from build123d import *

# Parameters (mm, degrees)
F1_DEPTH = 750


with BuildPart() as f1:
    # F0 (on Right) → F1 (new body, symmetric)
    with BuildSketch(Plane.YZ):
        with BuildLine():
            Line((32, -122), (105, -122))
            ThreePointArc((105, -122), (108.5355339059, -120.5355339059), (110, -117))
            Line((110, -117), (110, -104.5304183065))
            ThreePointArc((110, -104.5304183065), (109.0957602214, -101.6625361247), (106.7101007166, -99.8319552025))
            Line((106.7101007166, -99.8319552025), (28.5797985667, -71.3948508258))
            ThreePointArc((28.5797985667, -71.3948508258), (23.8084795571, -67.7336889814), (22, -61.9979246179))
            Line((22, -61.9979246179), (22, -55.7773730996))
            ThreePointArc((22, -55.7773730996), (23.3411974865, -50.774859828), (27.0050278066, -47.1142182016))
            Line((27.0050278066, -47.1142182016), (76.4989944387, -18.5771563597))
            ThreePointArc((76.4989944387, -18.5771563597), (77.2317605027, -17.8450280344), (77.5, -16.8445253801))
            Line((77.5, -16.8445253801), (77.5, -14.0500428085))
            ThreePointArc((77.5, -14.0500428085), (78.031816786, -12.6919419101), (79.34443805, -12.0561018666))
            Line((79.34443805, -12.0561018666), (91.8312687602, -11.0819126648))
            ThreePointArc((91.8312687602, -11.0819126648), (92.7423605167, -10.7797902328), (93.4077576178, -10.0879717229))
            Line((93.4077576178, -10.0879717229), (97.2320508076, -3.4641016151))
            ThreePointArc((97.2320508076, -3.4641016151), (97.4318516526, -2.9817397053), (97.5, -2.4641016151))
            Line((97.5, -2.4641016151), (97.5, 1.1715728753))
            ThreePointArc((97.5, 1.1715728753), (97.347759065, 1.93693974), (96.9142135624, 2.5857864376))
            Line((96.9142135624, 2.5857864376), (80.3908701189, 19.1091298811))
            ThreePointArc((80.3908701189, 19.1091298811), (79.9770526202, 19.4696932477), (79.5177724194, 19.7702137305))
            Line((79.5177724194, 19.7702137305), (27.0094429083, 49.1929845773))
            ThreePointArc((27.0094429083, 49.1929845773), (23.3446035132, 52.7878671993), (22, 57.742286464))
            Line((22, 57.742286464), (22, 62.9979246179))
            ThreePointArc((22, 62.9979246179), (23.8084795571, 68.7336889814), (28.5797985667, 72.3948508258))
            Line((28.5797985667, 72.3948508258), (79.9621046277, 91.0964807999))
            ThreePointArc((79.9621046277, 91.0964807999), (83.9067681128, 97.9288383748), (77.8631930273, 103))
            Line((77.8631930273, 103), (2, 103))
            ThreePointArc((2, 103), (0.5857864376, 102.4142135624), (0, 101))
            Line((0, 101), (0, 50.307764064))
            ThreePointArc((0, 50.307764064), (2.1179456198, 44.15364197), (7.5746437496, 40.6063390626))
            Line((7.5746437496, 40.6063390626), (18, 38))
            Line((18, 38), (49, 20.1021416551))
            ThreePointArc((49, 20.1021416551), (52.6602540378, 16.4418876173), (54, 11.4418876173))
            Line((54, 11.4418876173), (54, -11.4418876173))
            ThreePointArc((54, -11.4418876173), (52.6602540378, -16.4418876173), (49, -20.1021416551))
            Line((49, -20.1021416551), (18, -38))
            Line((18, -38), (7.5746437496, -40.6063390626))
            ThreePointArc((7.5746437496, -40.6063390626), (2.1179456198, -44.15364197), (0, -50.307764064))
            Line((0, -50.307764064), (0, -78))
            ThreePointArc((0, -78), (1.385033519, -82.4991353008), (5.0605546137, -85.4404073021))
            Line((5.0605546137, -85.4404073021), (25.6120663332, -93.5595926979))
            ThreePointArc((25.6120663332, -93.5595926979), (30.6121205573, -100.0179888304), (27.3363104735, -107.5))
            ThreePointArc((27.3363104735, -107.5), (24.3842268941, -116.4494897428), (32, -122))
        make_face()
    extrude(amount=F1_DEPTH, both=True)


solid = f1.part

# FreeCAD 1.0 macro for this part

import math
import FreeCAD as App
import Part
import Sketcher

V = App.Vector
Q = App.Units.Quantity

doc = App.newDocument("Part")
body = doc.addObject("PartDesign::Body", "Body")

# Sketch on YZ plane
sketch1 = body.newObject("Sketcher::SketchObject", "Sketch")
sketch1.AttachmentSupport = (doc.getObject("YZ_Plane"), [""])
sketch1.MapMode = "FlatFace"
sketch1.addGeometry(Part.LineSegment(V(32, -122, 0), V(105, -122, 0)), False)
sketch1.addGeometry(Part.ArcOfCircle(Part.Circle(V(105, -117, 0), V(0, 0, 1), 5), math.radians(-90), math.radians(0)), False)
sketch1.addGeometry(Part.LineSegment(V(110, -117, 0), V(110, -104.530418, 0)), False)
sketch1.addGeometry(Part.ArcOfCircle(Part.Circle(V(105, -104.530418, 0), V(0, 0, 1), 5), math.radians(0), math.radians(70)), False)
sketch1.addGeometry(Part.LineSegment(V(106.710101, -99.831955, 0), V(28.579799, -71.394851, 0)), False)
sketch1.addGeometry(Part.ArcOfCircle(Part.Circle(V(32, -61.997925, 0), V(0, 0, 1), 10), math.radians(180), math.radians(250)), False)
sketch1.addGeometry(Part.LineSegment(V(22, -61.997925, 0), V(22, -55.777373, 0)), False)
sketch1.addGeometry(Part.ArcOfCircle(Part.Circle(V(32, -55.777373, 0), V(0, 0, 1), 10), math.radians(119.966742), math.radians(180)), False)
sketch1.addGeometry(Part.LineSegment(V(27.005028, -47.114218, 0), V(76.498994, -18.577156, 0)), False)
sketch1.addGeometry(Part.ArcOfCircle(Part.Circle(V(75.5, -16.844525, 0), V(0, 0, 1), 2), math.radians(-60.033258), math.radians(0)), False)
sketch1.addGeometry(Part.LineSegment(V(77.5, -16.844525, 0), V(77.5, -14.050043, 0)), False)
sketch1.addGeometry(Part.ArcOfCircle(Part.Circle(V(79.5, -14.050043, 0), V(0, 0, 1), 2), math.radians(94.461027), math.radians(180)), False)
sketch1.addGeometry(Part.LineSegment(V(79.344438, -12.056102, 0), V(91.831269, -11.081913, 0)), False)
sketch1.addGeometry(Part.ArcOfCircle(Part.Circle(V(91.675707, -9.087972, 0), V(0, 0, 1), 2), math.radians(-85.538973), math.radians(-30)), False)
sketch1.addGeometry(Part.LineSegment(V(93.407758, -10.087972, 0), V(97.232051, -3.464102, 0)), False)
sketch1.addGeometry(Part.ArcOfCircle(Part.Circle(V(95.5, -2.464102, 0), V(0, 0, 1), 2), math.radians(-30), math.radians(0)), False)
sketch1.addGeometry(Part.LineSegment(V(97.5, -2.464102, 0), V(97.5, 1.171573, 0)), False)
sketch1.addGeometry(Part.ArcOfCircle(Part.Circle(V(95.5, 1.171573, 0), V(0, 0, 1), 2), math.radians(0), math.radians(45)), False)
sketch1.addGeometry(Part.LineSegment(V(96.914214, 2.585786, 0), V(80.39087, 19.10913, 0)), False)
sketch1.addGeometry(Part.ArcOfCircle(Part.Circle(V(77.562443, 16.280703, 0), V(0, 0, 1), 4), math.radians(45), math.radians(60.736135)), False)
sketch1.addGeometry(Part.LineSegment(V(79.517772, 19.770214, 0), V(27.009443, 49.192985, 0)), False)
sketch1.addGeometry(Part.ArcOfCircle(Part.Circle(V(31.8, 57.742286, 0), V(0, 0, 1), 9.8), math.radians(180), math.radians(240.736135)), False)
sketch1.addGeometry(Part.LineSegment(V(22, 57.742286, 0), V(22, 62.997925, 0)), False)
sketch1.addGeometry(Part.ArcOfCircle(Part.Circle(V(32, 62.997925, 0), V(0, 0, 1), 10), math.radians(110), math.radians(180)), False)
sketch1.addGeometry(Part.LineSegment(V(28.579799, 72.394851, 0), V(79.962105, 91.096481, 0)), False)
sketch1.addGeometry(Part.ArcOfCircle(Part.Circle(V(77.863193, 96.863193, 0), V(0, 0, 1), 6.136807), math.radians(-70), math.radians(90)), False)
sketch1.addGeometry(Part.LineSegment(V(77.863193, 103, 0), V(2, 103, 0)), False)
sketch1.addGeometry(Part.ArcOfCircle(Part.Circle(V(2, 101, 0), V(0, 0, 1), 2), math.radians(90), math.radians(180)), False)
sketch1.addGeometry(Part.LineSegment(V(0, 101, 0), V(0, 50.307764, 0)), False)
sketch1.addGeometry(Part.ArcOfCircle(Part.Circle(V(10, 50.307764, 0), V(0, 0, 1), 10), math.radians(180), math.radians(255.963757)), False)
sketch1.addGeometry(Part.LineSegment(V(7.574644, 40.606339, 0), V(18, 38, 0)), False)
sketch1.addGeometry(Part.LineSegment(V(18, 38, 0), V(49, 20.102142, 0)), False)
sketch1.addGeometry(Part.ArcOfCircle(Part.Circle(V(44, 11.441888, 0), V(0, 0, 1), 10), math.radians(0), math.radians(60)), False)
sketch1.addGeometry(Part.LineSegment(V(54, 11.441888, 0), V(54, -11.441888, 0)), False)
sketch1.addGeometry(Part.ArcOfCircle(Part.Circle(V(44, -11.441888, 0), V(0, 0, 1), 10), math.radians(-60), math.radians(0)), False)
sketch1.addGeometry(Part.LineSegment(V(49, -20.102142, 0), V(18, -38, 0)), False)
sketch1.addGeometry(Part.LineSegment(V(18, -38, 0), V(7.574644, -40.606339, 0)), False)
sketch1.addGeometry(Part.ArcOfCircle(Part.Circle(V(10, -50.307764, 0), V(0, 0, 1), 10), math.radians(104.036243), math.radians(180)), False)
sketch1.addGeometry(Part.LineSegment(V(0, -50.307764, 0), V(0, -78, 0)), False)
sketch1.addGeometry(Part.ArcOfCircle(Part.Circle(V(8, -78, 0), V(0, 0, 1), 8), math.radians(180), math.radians(248.442753)), False)
sketch1.addGeometry(Part.LineSegment(V(5.060555, -85.440407, 0), V(25.612066, -93.559593, 0)), False)
sketch1.addGeometry(Part.ArcOfCircle(Part.Circle(V(22.672621, -101, 0), V(0, 0, 1), 8), math.radians(-54.340912), math.radians(68.442753)), False)
sketch1.addGeometry(Part.ArcOfCircle(Part.Circle(V(32, -114, 0), V(0, 0, 1), 8), math.radians(125.659088), math.radians(270)), False)
sketch1.addConstraint(Sketcher.Constraint("Tangent", 0, 2, 1, 1))
sketch1.addConstraint(Sketcher.Constraint("Tangent", 1, 2, 2, 1))
sketch1.addConstraint(Sketcher.Constraint("Tangent", 2, 2, 3, 1))
sketch1.addConstraint(Sketcher.Constraint("Tangent", 3, 2, 4, 1))
sketch1.addConstraint(Sketcher.Constraint("Tangent", 4, 2, 5, 2))
sketch1.addConstraint(Sketcher.Constraint("Tangent", 5, 1, 6, 1))
sketch1.addConstraint(Sketcher.Constraint("Tangent", 6, 2, 7, 2))
sketch1.addConstraint(Sketcher.Constraint("Tangent", 7, 1, 8, 1))
sketch1.addConstraint(Sketcher.Constraint("Tangent", 8, 2, 9, 1))
sketch1.addConstraint(Sketcher.Constraint("Tangent", 9, 2, 10, 1))
sketch1.addConstraint(Sketcher.Constraint("Tangent", 10, 2, 11, 2))
sketch1.addConstraint(Sketcher.Constraint("Tangent", 11, 1, 12, 1))
sketch1.addConstraint(Sketcher.Constraint("Tangent", 12, 2, 13, 1))
sketch1.addConstraint(Sketcher.Constraint("Tangent", 13, 2, 14, 1))
sketch1.addConstraint(Sketcher.Constraint("Tangent", 14, 2, 15, 1))
sketch1.addConstraint(Sketcher.Constraint("Tangent", 15, 2, 16, 1))
sketch1.addConstraint(Sketcher.Constraint("Tangent", 16, 2, 17, 1))
sketch1.addConstraint(Sketcher.Constraint("Tangent", 17, 2, 18, 1))
sketch1.addConstraint(Sketcher.Constraint("Tangent", 18, 2, 19, 1))
sketch1.addConstraint(Sketcher.Constraint("Tangent", 19, 2, 20, 1))
sketch1.addConstraint(Sketcher.Constraint("Tangent", 20, 2, 21, 2))
sketch1.addConstraint(Sketcher.Constraint("Tangent", 21, 1, 22, 1))
sketch1.addConstraint(Sketcher.Constraint("Tangent", 22, 2, 23, 2))
sketch1.addConstraint(Sketcher.Constraint("Tangent", 23, 1, 24, 1))
sketch1.addConstraint(Sketcher.Constraint("Tangent", 24, 2, 25, 1))
sketch1.addConstraint(Sketcher.Constraint("Tangent", 25, 2, 26, 1))
sketch1.addConstraint(Sketcher.Constraint("Tangent", 26, 2, 27, 1))
sketch1.addConstraint(Sketcher.Constraint("Tangent", 27, 2, 28, 1))
sketch1.addConstraint(Sketcher.Constraint("Tangent", 28, 2, 29, 1))
sketch1.addConstraint(Sketcher.Constraint("Tangent", 29, 2, 30, 1))
sketch1.addConstraint(Sketcher.Constraint("Coincident", 30, 2, 31, 1))
sketch1.addConstraint(Sketcher.Constraint("Tangent", 31, 2, 32, 2))
sketch1.addConstraint(Sketcher.Constraint("Tangent", 32, 1, 33, 1))
sketch1.addConstraint(Sketcher.Constraint("Tangent", 33, 2, 34, 2))
sketch1.addConstraint(Sketcher.Constraint("Tangent", 34, 1, 35, 1))
sketch1.addConstraint(Sketcher.Constraint("Coincident", 35, 2, 36, 1))
sketch1.addConstraint(Sketcher.Constraint("Tangent", 36, 2, 37, 1))
sketch1.addConstraint(Sketcher.Constraint("Tangent", 37, 2, 38, 1))
sketch1.addConstraint(Sketcher.Constraint("Tangent", 38, 2, 39, 1))
sketch1.addConstraint(Sketcher.Constraint("Tangent", 39, 2, 40, 1))
sketch1.addConstraint(Sketcher.Constraint("Tangent", 40, 2, 41, 2))
sketch1.addConstraint(Sketcher.Constraint("Tangent", 41, 1, 42, 1))
sketch1.addConstraint(Sketcher.Constraint("Tangent", 42, 2, 0, 1))
sketch1.addConstraint(Sketcher.Constraint("Horizontal", 0))
sketch1.addConstraint(Sketcher.Constraint("Vertical", 2))
sketch1.addConstraint(Sketcher.Constraint("Vertical", 6))
sketch1.addConstraint(Sketcher.Constraint("Vertical", 10))
sketch1.addConstraint(Sketcher.Constraint("Vertical", 16))
sketch1.addConstraint(Sketcher.Constraint("Vertical", 22))
sketch1.addConstraint(Sketcher.Constraint("Horizontal", 26))
sketch1.addConstraint(Sketcher.Constraint("Vertical", 28))
sketch1.addConstraint(Sketcher.Constraint("Vertical", 33))
sketch1.addConstraint(Sketcher.Constraint("Vertical", 38))
sketch1.addConstraint(Sketcher.Constraint("Equal", 1, 3))
sketch1.addConstraint(Sketcher.Constraint("Equal", 5, 7))
sketch1.addConstraint(Sketcher.Constraint("Equal", 9, 11))
sketch1.addConstraint(Sketcher.Constraint("Equal", 11, 13))
sketch1.addConstraint(Sketcher.Constraint("Equal", 13, 15))
sketch1.addConstraint(Sketcher.Constraint("Equal", 15, 17))
sketch1.addConstraint(Sketcher.Constraint("Equal", 7, 23))
sketch1.addConstraint(Sketcher.Constraint("Equal", 17, 27))
sketch1.addConstraint(Sketcher.Constraint("Equal", 23, 29))
sketch1.addConstraint(Sketcher.Constraint("Equal", 29, 32))
sketch1.addConstraint(Sketcher.Constraint("Equal", 32, 34))
sketch1.addConstraint(Sketcher.Constraint("Equal", 34, 37))
sketch1.addConstraint(Sketcher.Constraint("Equal", 39, 41))
sketch1.addConstraint(Sketcher.Constraint("Equal", 41, 42))
sketch1.addConstraint(Sketcher.Constraint("Symmetric", 28, 2, 37, 2, -1, 1))
sketch1.addConstraint(Sketcher.Constraint("Symmetric", 31, 2, 34, 1, -1))
sketch1.addConstraint(Sketcher.Constraint("Symmetric", 29, 2, 36, 2, -1))
sketch1.addConstraint(Sketcher.Constraint("Perpendicular", 14, 31))
sketch1.addConstraint(Sketcher.Constraint("Vertical", 7, 3, 23, 3))
sketch1.addConstraint(Sketcher.Constraint("Vertical", 23, 3, 42, 3))
sketch1.addConstraint(Sketcher.Constraint("Vertical", 4, 2, 23, 1))
sketch1.addConstraint(Sketcher.Constraint("Radius", 1, Q("5 mm")))
sketch1.addConstraint(Sketcher.Constraint("Radius", 5, Q("10 mm")))
sketch1.addConstraint(Sketcher.Constraint("Radius", 9, Q("2 mm")))
sketch1.addConstraint(Sketcher.Constraint("Radius", 19, Q("4 mm")))
sketch1.addConstraint(Sketcher.Constraint("Radius", 39, Q("8 mm")))
sketch1.addConstraint(Sketcher.Constraint("Radius", 21, Q("9.8 mm")))
sketch1.addConstraint(Sketcher.Constraint("DistanceX", 0, 1, 0, 2, Q("73 mm")))
sketch1.addConstraint(Sketcher.Constraint("Angle", 4, Q("160 deg")))
sketch1.addConstraint(Sketcher.Constraint("Angle", 14, Q("60 deg")))
sketch1.addConstraint(Sketcher.Constraint("Angle", 18, Q("135 deg")))
sketch1.addConstraint(Sketcher.Constraint("DistanceX", -1, 1, 1, 3, Q("105 mm")))
sketch1.addConstraint(Sketcher.Constraint("DistanceY", 1, 3, -1, 1, Q("117 mm")))
sketch1.addConstraint(Sketcher.Constraint("DistanceY", -1, 1, 27, 3, Q("101 mm")))
sketch1.addConstraint(Sketcher.Constraint("DistanceX", -1, 1, 32, 3, Q("44 mm")))
sketch1.addConstraint(Sketcher.Constraint("DistanceY", 39, 3, -1, 1, Q("78 mm")))
sketch1.addConstraint(Sketcher.Constraint("DistanceY", 41, 3, -1, 1, Q("101 mm")))
sketch1.addConstraint(Sketcher.Constraint("DistanceX", -1, 1, 30, 2, Q("18 mm")))
sketch1.addConstraint(Sketcher.Constraint("DistanceY", -1, 1, 30, 2, Q("38 mm")))
sketch1.addConstraint(Sketcher.Constraint("DistanceX", -1, 1, 9, 3, Q("75.5 mm")))
sketch1.addConstraint(Sketcher.Constraint("DistanceX", -1, 1, 15, 3, Q("95.5 mm")))
sketch1.addConstraint(Sketcher.Constraint("Radius", 25, Q("6.136807 mm")))
sketch1.addConstraint(Sketcher.Constraint("Distance", 20, Q("60.1899 mm")))
sketch1.addConstraint(Sketcher.Constraint("DistanceY", 2, 1, 2, 2, Q("12.469582 mm")))
sketch1.addConstraint(Sketcher.Constraint("DistanceY", 6, 1, 6, 2, Q("6.220552 mm")))
sketch1.addConstraint(Sketcher.Constraint("DistanceY", 22, 1, 22, 2, Q("5.255638 mm")))
sketch1.addConstraint(Sketcher.Constraint("DistanceY", 15, 3, -1, 1, Q("2.464102 mm")))
sketch1.addConstraint(Sketcher.Constraint("DistanceY", 11, 1, -1, 1, Q("12.056102 mm")))
sketch1.addConstraint(Sketcher.Constraint("Distance", 24, Q("54.679908 mm")))
sketch1.addConstraint(Sketcher.Constraint("Distance", 30, Q("10.746211 mm")))
sketch1.addConstraint(Sketcher.Constraint("DistanceY", 10, 1, 10, 2, Q("2.794483 mm")))
sketch1.addConstraint(Sketcher.Constraint("DistanceY", 16, 1, 16, 2, Q("3.635674 mm")))
sketch1.addConstraint(Sketcher.Constraint("DistanceY", 13, 3, -1, 1, Q("9.087972 mm")))
pad1 = body.newObject("PartDesign::Pad", "Pad")
pad1.Profile = sketch1
pad1.Length = 1500
pad1.Midplane = True

doc.recompute()
